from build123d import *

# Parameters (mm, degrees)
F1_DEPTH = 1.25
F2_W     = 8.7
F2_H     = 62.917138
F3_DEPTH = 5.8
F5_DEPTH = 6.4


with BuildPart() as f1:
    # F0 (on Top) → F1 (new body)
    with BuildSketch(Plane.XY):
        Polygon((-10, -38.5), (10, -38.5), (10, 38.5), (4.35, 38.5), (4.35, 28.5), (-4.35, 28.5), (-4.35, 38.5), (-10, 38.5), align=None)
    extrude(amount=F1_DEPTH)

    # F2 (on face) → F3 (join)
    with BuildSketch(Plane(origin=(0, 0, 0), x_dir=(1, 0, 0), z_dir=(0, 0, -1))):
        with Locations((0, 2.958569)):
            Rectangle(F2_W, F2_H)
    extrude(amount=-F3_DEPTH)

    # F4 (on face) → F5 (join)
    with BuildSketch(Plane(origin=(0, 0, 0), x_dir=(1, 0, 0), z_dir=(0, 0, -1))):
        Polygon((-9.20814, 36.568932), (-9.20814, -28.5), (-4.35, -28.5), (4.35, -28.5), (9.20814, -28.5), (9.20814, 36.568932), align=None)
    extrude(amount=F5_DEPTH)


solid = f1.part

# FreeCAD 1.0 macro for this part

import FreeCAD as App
import Part
import Sketcher
from FreeCAD import Vector


def add_polygon(sketch, points):
    """Adds a closed chain of lines whose ends are joined by coincident constraints."""
    first, n = sketch.GeometryCount, len(points)
    for a, b in zip(points, points[1:] + points[:1]):
        sketch.addGeometry(Part.LineSegment(App.Vector(*a, 0), App.Vector(*b, 0)), False)
    for i in range(n):
        sketch.addConstraint(Sketcher.Constraint("Coincident", first + i, 2, first + (i + 1) % n, 1))

doc = App.newDocument("Part")
params = doc.addObject("Spreadsheet::Sheet", "Params")
for row, (alias, value) in enumerate([
    ("sketch1_width", "20 mm"),
    ("sketch1_height", "77 mm"),
    ("sketch1_height2", "10 mm"),
    ("sketch1_width2", "8.7 mm"),
    ("pad1_length", "1.25 mm"),
    ("sketch2_width", "8.7 mm"),
    ("pad2_length", "5.8 mm"),
    ("pad3_length", "6.4 mm"),
], start=1):
    params.set(f"A{row}", alias)
    params.set(f"B{row}", "=" + value)
    params.setAlias(f"B{row}", alias)

body = doc.addObject("PartDesign::Body", "Body")

sketch1 = body.newObject("Sketcher::SketchObject", "Sketch")
sketch1.AttachmentSupport = (doc.getObject("XY_Plane"), [""])
sketch1.MapMode = "FlatFace"
add_polygon(sketch1, [(-10, -38.5), (10, -38.5), (10, 38.5), (4.35, 38.5), (4.35, 28.5), (-4.35, 28.5), (-4.35, 38.5), (-10, 38.5)])
sketch1.addConstraint([
    Sketcher.Constraint("Horizontal", 0),
    Sketcher.Constraint("Vertical", 1),
    Sketcher.Constraint("Horizontal", 2),
    Sketcher.Constraint("Vertical", 3),
    Sketcher.Constraint("Horizontal", 4),
    Sketcher.Constraint("Vertical", 5),
    Sketcher.Constraint("Horizontal", 6),
    Sketcher.Constraint("Vertical", 7),
    Sketcher.Constraint("Symmetric", 0, 2, 6, 2, -1, 1),
    Sketcher.Constraint("Symmetric", 2, 2, 5, 2, -2),
    Sketcher.Constraint("DistanceX", 0, 1, 0, 2, 20.0),
    Sketcher.Constraint("DistanceY", 1, 1, 1, 2, 77.0),
    Sketcher.Constraint("DistanceY", 3, 2, 3, 1, 10.0),
    Sketcher.Constraint("DistanceX", 4, 2, 4, 1, 8.7),
])
sketch1.setExpression("Constraints[18]", "Params.sketch1_width")
sketch1.setExpression("Constraints[19]", "Params.sketch1_height")
sketch1.setExpression("Constraints[20]", "Params.sketch1_height2")
sketch1.setExpression("Constraints[21]", "Params.sketch1_width2")
pad1 = body.newObject("PartDesign::Pad", "Pad")
pad1.Profile = sketch1
pad1.setExpression("Length", "Params.pad1_length")

sketch2 = body.newObject("Sketcher::SketchObject", "Sketch001")
sketch2.AttachmentSupport = (doc.getObject("XY_Plane"), [""])
sketch2.MapMode = "FlatFace"
add_polygon(sketch2, [(-4.35, -34.417138), (-4.35, 28.5), (4.35, 28.5), (4.35, -34.417138)])
sketch2.addConstraint([
    Sketcher.Constraint("Vertical", 0),
    Sketcher.Constraint("Horizontal", 1),
    Sketcher.Constraint("Vertical", 2),
    Sketcher.Constraint("Horizontal", 3),
    Sketcher.Constraint("DistanceX", 1, 1, 1, 2, 8.7),
    Sketcher.Constraint("DistanceY", -1, 1, 0, 2, 28.5),
    Sketcher.Constraint("DistanceX", 0, 2, -1, 1, 4.35),
    Sketcher.Constraint("DistanceY", 0, 1, 0, 2, 62.917138),
])
sketch2.setExpression("Constraints[8]", "Params.sketch2_width")
pad2 = body.newObject("PartDesign::Pad", "Pad001")
pad2.Profile = sketch2
pad2.setExpression("Length", "Params.pad2_length")

sketch3 = body.newObject("Sketcher::SketchObject", "Sketch002")
sketch3.AttachmentSupport = (doc.getObject("XY_Plane"), [""])
sketch3.MapMode = "FlatFace"
add_polygon(sketch3, [(-9.20814, -36.568932), (-9.20814, 28.5), (9.20814, 28.5), (9.20814, -36.568932)])
sketch3.addConstraint([
    Sketcher.Constraint("Vertical", 0),
    Sketcher.Constraint("Horizontal", 1),
    Sketcher.Constraint("Vertical", 2),
    Sketcher.Constraint("Horizontal", 3),
    Sketcher.Constraint("DistanceY", -1, 1, 0, 2, 28.5),
    Sketcher.Constraint("DistanceX", 1, 1, 1, 2, 18.41628),
    Sketcher.Constraint("DistanceY", 0, 1, 0, 2, 65.068932),
    Sketcher.Constraint("DistanceX", 0, 2, -1, 1, 9.20814),
])
pad3 = body.newObject("PartDesign::Pad", "Pad002")
pad3.Profile = sketch3
pad3.setExpression("Length", "Params.pad3_length")
pad3.Reversed = True

doc.recompute()
